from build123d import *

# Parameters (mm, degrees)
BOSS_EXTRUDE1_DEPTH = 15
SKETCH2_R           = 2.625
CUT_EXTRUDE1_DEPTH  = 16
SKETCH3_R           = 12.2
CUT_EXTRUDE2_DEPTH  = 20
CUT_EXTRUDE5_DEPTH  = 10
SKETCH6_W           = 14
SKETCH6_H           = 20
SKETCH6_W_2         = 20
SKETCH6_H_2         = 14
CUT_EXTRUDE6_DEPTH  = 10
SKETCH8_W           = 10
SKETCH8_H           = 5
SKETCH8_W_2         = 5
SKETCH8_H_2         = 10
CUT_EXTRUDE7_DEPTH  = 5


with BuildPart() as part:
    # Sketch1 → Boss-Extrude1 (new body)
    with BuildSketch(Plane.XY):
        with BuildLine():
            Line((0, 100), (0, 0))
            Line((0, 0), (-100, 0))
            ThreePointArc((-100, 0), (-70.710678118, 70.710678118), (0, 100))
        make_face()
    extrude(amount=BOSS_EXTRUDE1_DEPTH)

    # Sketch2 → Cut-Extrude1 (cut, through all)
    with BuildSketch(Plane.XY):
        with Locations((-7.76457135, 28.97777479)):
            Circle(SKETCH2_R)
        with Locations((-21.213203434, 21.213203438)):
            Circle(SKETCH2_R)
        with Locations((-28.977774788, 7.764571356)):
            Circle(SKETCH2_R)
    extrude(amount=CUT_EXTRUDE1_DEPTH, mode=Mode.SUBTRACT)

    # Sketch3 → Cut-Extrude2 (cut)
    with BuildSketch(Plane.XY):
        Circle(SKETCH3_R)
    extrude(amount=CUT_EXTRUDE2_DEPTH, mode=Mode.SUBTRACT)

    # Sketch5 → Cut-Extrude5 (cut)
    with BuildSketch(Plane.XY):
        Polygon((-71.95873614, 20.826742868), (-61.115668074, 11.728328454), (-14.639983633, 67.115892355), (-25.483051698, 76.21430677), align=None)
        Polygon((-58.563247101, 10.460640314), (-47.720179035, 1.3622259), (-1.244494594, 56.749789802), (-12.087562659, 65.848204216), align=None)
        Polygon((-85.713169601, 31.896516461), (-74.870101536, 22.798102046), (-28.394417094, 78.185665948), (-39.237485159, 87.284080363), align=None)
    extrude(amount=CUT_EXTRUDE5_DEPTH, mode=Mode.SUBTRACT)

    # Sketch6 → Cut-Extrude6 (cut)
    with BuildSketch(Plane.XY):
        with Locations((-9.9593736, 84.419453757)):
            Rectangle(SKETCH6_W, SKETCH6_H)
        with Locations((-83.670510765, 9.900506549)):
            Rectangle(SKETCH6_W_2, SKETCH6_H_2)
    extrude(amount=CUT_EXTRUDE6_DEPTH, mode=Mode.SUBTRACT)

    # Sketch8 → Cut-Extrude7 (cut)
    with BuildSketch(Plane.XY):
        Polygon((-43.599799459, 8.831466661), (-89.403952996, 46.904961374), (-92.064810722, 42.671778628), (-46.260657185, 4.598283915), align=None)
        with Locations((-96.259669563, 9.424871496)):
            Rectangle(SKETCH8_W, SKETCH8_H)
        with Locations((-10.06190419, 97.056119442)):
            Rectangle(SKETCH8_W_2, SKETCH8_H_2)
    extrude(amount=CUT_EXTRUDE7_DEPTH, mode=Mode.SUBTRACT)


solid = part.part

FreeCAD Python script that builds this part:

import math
import FreeCAD as App
import Part
import Sketcher

V = App.Vector
Q = App.Units.Quantity

doc = App.newDocument("Part")
body = doc.addObject("PartDesign::Body", "Body")

# Sketch on XY plane
sketch1 = body.newObject("Sketcher::SketchObject", "Sketch")
sketch1.AttachmentSupport = (doc.getObject("XY_Plane"), [""])
sketch1.MapMode = "FlatFace"
sketch1.addGeometry([
    Part.LineSegment(V(0, 0, 0), V(0, 100, 0)),
    Part.ArcOfCircle(Part.Circle(V(0, 0, 0), V(0, 0, 1), 100), math.radians(90), math.radians(180)),
    Part.LineSegment(V(-100, 0, 0), V(0, 0, 0)),
], False)
sketch1.addConstraint([
    Sketcher.Constraint("Coincident", 0, 2, 1, 1),
    Sketcher.Constraint("Coincident", 1, 2, 2, 1),
    Sketcher.Constraint("Coincident", 2, 2, 0, 1),
    Sketcher.Constraint("Vertical", 0),
    Sketcher.Constraint("Horizontal", 2),
    Sketcher.Constraint("Coincident", 1, 3, -1, 1),
    Sketcher.Constraint("Coincident", 2, 2, -1, 1),
    Sketcher.Constraint("Radius", 1, Q("100 mm")),
])
pad1 = body.newObject("PartDesign::Pad", "Pad")
pad1.Profile = sketch1
pad1.Length = 15

# Sketch on XY plane
sketch2 = body.newObject("Sketcher::SketchObject", "Sketch001")
sketch2.AttachmentSupport = (doc.getObject("XY_Plane"), [""])
sketch2.MapMode = "FlatFace"
sketch2.addGeometry([
    Part.Circle(V(-7.8, 29, 0), V(0, 0, 1), 2.6),
    Part.Circle(V(-21.2, 21.2, 0), V(0, 0, 1), 2.6),
    Part.Circle(V(-29, 7.8, 0), V(0, 0, 1), 2.6),
], False)
sketch2.addConstraint([
    Sketcher.Constraint("Equal", 0, 1),
    Sketcher.Constraint("Equal", 1, 2),
    Sketcher.Constraint("Diameter", 0, Q("5.25 mm")),
    Sketcher.Constraint("DistanceX", 0, 3, -1, 1, Q("7.764571 mm")),
    Sketcher.Constraint("DistanceY", -1, 1, 2, 3, Q("7.764571 mm")),
    Sketcher.Constraint("DistanceY", 1, 3, 0, 3, Q("7.764571 mm")),
    Sketcher.Constraint("DistanceX", 2, 3, 1, 3, Q("7.764571 mm")),
    Sketcher.Constraint("DistanceY", -1, 1, 0, 3, Q("28.977775 mm")),
    Sketcher.Constraint("DistanceX", 1, 3, -1, 1, Q("21.213203 mm")),
])
pocket1 = body.newObject("PartDesign::Pocket", "Pocket")
pocket1.Profile = sketch2
pocket1.Type = "ThroughAll"
pocket1.Reversed = True

# Sketch on XY plane
sketch3 = body.newObject("Sketcher::SketchObject", "Sketch002")
sketch3.AttachmentSupport = (doc.getObject("XY_Plane"), [""])
sketch3.MapMode = "FlatFace"
sketch3.addGeometry(Part.Circle(V(0, 0, 0), V(0, 0, 1), 12), False)
sketch3.addConstraint([
    Sketcher.Constraint("Coincident", 0, 3, -1, 1),
    Sketcher.Constraint("Diameter", 0, Q("24.4 mm")),
])
pocket2 = body.newObject("PartDesign::Pocket", "Pocket001")
pocket2.Profile = sketch3
pocket2.Length = 20
pocket2.Reversed = True

# Sketch on XY plane
sketch4 = body.newObject("Sketcher::SketchObject", "Sketch003")
sketch4.AttachmentSupport = (doc.getObject("XY_Plane"), [""])
sketch4.MapMode = "FlatFace"
sketch4.addGeometry([
    Part.LineSegment(V(-72, 21, 0), V(-61, 12, 0)),  # 0
    Part.LineSegment(V(-61, 12, 0), V(-15, 67, 0)),  # 1
    Part.LineSegment(V(-15, 67, 0), V(-25, 76, 0)),  # 2
    Part.LineSegment(V(-25, 76, 0), V(-72, 21, 0)),  # 3
    Part.LineSegment(V(-59, 10, 0), V(-48, 1, 0)),  # 4
    Part.LineSegment(V(-48, 1, 0), V(-1, 57, 0)),  # 5
    Part.LineSegment(V(-1, 57, 0), V(-12, 66, 0)),  # 6
    Part.LineSegment(V(-12, 66, 0), V(-59, 10, 0)),  # 7
    Part.LineSegment(V(-86, 32, 0), V(-75, 23, 0)),  # 8
    Part.LineSegment(V(-75, 23, 0), V(-28, 78, 0)),  # 9
    Part.LineSegment(V(-28, 78, 0), V(-39, 87, 0)),  # 10
    Part.LineSegment(V(-39, 87, 0), V(-86, 32, 0)),  # 11
], False)
sketch4.addConstraint([
    Sketcher.Constraint("Coincident", 0, 2, 1, 1),
    Sketcher.Constraint("Coincident", 1, 2, 2, 1),
    Sketcher.Constraint("Coincident", 2, 2, 3, 1),
    Sketcher.Constraint("Coincident", 3, 2, 0, 1),
    Sketcher.Constraint("Coincident", 4, 2, 5, 1),
    Sketcher.Constraint("Coincident", 5, 2, 6, 1),
    Sketcher.Constraint("Coincident", 6, 2, 7, 1),
    Sketcher.Constraint("Coincident", 7, 2, 4, 1),
    Sketcher.Constraint("Coincident", 8, 2, 9, 1),
    Sketcher.Constraint("Coincident", 9, 2, 10, 1),
    Sketcher.Constraint("Coincident", 10, 2, 11, 1),
    Sketcher.Constraint("Coincident", 11, 2, 8, 1),
    Sketcher.Constraint("Perpendicular", 0, 1),
    Sketcher.Constraint("Perpendicular", 1, 2),
    Sketcher.Constraint("Perpendicular", 2, 3),
    Sketcher.Constraint("Perpendicular", 3, 4),
    Sketcher.Constraint("Perpendicular", 4, 5),
    Sketcher.Constraint("Perpendicular", 5, 6),
    Sketcher.Constraint("Perpendicular", 6, 7),
    Sketcher.Constraint("Perpendicular", 7, 8),
    Sketcher.Constraint("Perpendicular", 8, 9),
    Sketcher.Constraint("Perpendicular", 9, 10),
    Sketcher.Constraint("Perpendicular", 10, 11),
    Sketcher.Constraint("Equal", 2, 4),
    Sketcher.Constraint("Equal", 3, 5),
    Sketcher.Constraint("Equal", 6, 8),
    Sketcher.Constraint("Equal", 7, 9),
    Sketcher.Constraint("Angle", 0, Q("-40 deg")),
    Sketcher.Constraint("DistanceX", 8, 2, -1, 1, Q("74.870102 mm")),
    Sketcher.Constraint("DistanceX", 10, 2, 1, 2, Q("24.597502 mm")),
    Sketcher.Constraint("Distance", 0, Q("14.15462 mm")),
    Sketcher.Constraint("Distance", 1, Q("72.30333 mm")),
    Sketcher.Constraint("DistanceY", -1, 1, 0, 2, Q("11.728328 mm")),
    Sketcher.Constraint("DistanceX", 4, 2, -1, 1, Q("47.720179 mm")),
    Sketcher.Constraint("DistanceY", -1, 1, 5, 2, Q("56.74979 mm")),
    Sketcher.Constraint("DistanceY", -1, 1, 10, 2, Q("87.28408 mm")),
])
pocket3 = body.newObject("PartDesign::Pocket", "Pocket002")
pocket3.Profile = sketch4
pocket3.Length = 10
pocket3.Reversed = True

# Sketch on XY plane
sketch5 = body.newObject("Sketcher::SketchObject", "Sketch004")
sketch5.AttachmentSupport = (doc.getObject("XY_Plane"), [""])
sketch5.MapMode = "FlatFace"
sketch5.addGeometry([
    Part.LineSegment(V(-17, 94, 0), V(-17, 74, 0)),  # 0
    Part.LineSegment(V(-17, 74, 0), V(-3, 74, 0)),  # 1
    Part.LineSegment(V(-3, 74, 0), V(-3, 94, 0)),  # 2
    Part.LineSegment(V(-3, 94, 0), V(-17, 94, 0)),  # 3
    Part.LineSegment(V(-94, 17, 0), V(-94, 3, 0)),  # 4
    Part.LineSegment(V(-94, 3, 0), V(-74, 3, 0)),  # 5
    Part.LineSegment(V(-74, 3, 0), V(-74, 17, 0)),  # 6
    Part.LineSegment(V(-74, 17, 0), V(-94, 17, 0)),  # 7
], False)
sketch5.addConstraint([
    Sketcher.Constraint("Coincident", 0, 2, 1, 1),
    Sketcher.Constraint("Coincident", 1, 2, 2, 1),
    Sketcher.Constraint("Coincident", 2, 2, 3, 1),
    Sketcher.Constraint("Coincident", 3, 2, 0, 1),
    Sketcher.Constraint("Coincident", 4, 2, 5, 1),
    Sketcher.Constraint("Coincident", 5, 2, 6, 1),
    Sketcher.Constraint("Coincident", 6, 2, 7, 1),
    Sketcher.Constraint("Coincident", 7, 2, 4, 1),
    Sketcher.Constraint("Vertical", 0),
    Sketcher.Constraint("Horizontal", 1),
    Sketcher.Constraint("Vertical", 2),
    Sketcher.Constraint("Horizontal", 3),
    Sketcher.Constraint("Vertical", 4),
    Sketcher.Constraint("Horizontal", 5),
    Sketcher.Constraint("Vertical", 6),
    Sketcher.Constraint("Horizontal", 7),
    Sketcher.Constraint("Equal", 7, 0),
    Sketcher.Constraint("Equal", 3, 4),
    Sketcher.Constraint("DistanceX", 1, 1, 1, 2, Q("14 mm")),
    Sketcher.Constraint("DistanceX", 5, 1, 5, 2, Q("20 mm")),
    Sketcher.Constraint("DistanceX", 4, 2, -1, 1, Q("93.670511 mm")),
    Sketcher.Constraint("DistanceX", 0, 2, -1, 1, Q("16.959374 mm")),
    Sketcher.Constraint("DistanceY", -1, 1, 0, 2, Q("74.419454 mm")),
    Sketcher.Constraint("DistanceY", -1, 1, 4, 2, Q("2.900507 mm")),
])
pocket4 = body.newObject("PartDesign::Pocket", "Pocket003")
pocket4.Profile = sketch5
pocket4.Length = 10
pocket4.Reversed = True

# Sketch on XY plane
sketch6 = body.newObject("Sketcher::SketchObject", "Sketch005")
sketch6.AttachmentSupport = (doc.getObject("XY_Plane"), [""])
sketch6.MapMode = "FlatFace"
sketch6.addGeometry([
    Part.LineSegment(V(-43.6, 8.8, 0), V(-89.4, 46.9, 0)),  # 0
    Part.LineSegment(V(-89.4, 46.9, 0), V(-92.1, 42.7, 0)),  # 1
    Part.LineSegment(V(-92.1, 42.7, 0), V(-46.3, 4.6, 0)),  # 2
    Part.LineSegment(V(-46.3, 4.6, 0), V(-43.6, 8.8, 0)),  # 3
    Part.LineSegment(V(-101.3, 11.9, 0), V(-101.3, 6.9, 0)),  # 4
    Part.LineSegment(V(-101.3, 6.9, 0), V(-91.3, 6.9, 0)),  # 5
    Part.LineSegment(V(-91.3, 6.9, 0), V(-91.3, 11.9, 0)),  # 6
    Part.LineSegment(V(-91.3, 11.9, 0), V(-101.3, 11.9, 0)),  # 7
    Part.LineSegment(V(-12.6, 102.1, 0), V(-12.6, 92.1, 0)),  # 8
    Part.LineSegment(V(-12.6, 92.1, 0), V(-7.6, 92.1, 0)),  # 9
    Part.LineSegment(V(-7.6, 92.1, 0), V(-7.6, 102.1, 0)),  # 10
    Part.LineSegment(V(-7.6, 102.1, 0), V(-12.6, 102.1, 0)),  # 11
], False)
sketch6.addConstraint([
    Sketcher.Constraint("Coincident", 0, 2, 1, 1),
    Sketcher.Constraint("Coincident", 1, 2, 2, 1),
    Sketcher.Constraint("Coincident", 2, 2, 3, 1),
    Sketcher.Constraint("Coincident", 3, 2, 0, 1),
    Sketcher.Constraint("Coincident", 4, 2, 5, 1),
    Sketcher.Constraint("Coincident", 5, 2, 6, 1),
    Sketcher.Constraint("Coincident", 6, 2, 7, 1),
    Sketcher.Constraint("Coincident", 7, 2, 4, 1),
    Sketcher.Constraint("Coincident", 8, 2, 9, 1),
    Sketcher.Constraint("Coincident", 9, 2, 10, 1),
    Sketcher.Constraint("Coincident", 10, 2, 11, 1),
    Sketcher.Constraint("Coincident", 11, 2, 8, 1),
    Sketcher.Constraint("Vertical", 4),
    Sketcher.Constraint("Horizontal", 5),
    Sketcher.Constraint("Vertical", 6),
    Sketcher.Constraint("Horizontal", 7),
    Sketcher.Constraint("Vertical", 8),
    Sketcher.Constraint("Horizontal", 9),
    Sketcher.Constraint("Vertical", 10),
    Sketcher.Constraint("Horizontal", 11),
    Sketcher.Constraint("Parallel", 0, 2),
    Sketcher.Constraint("Parallel", 1, 3),
    Sketcher.Constraint("Equal", 11, 4),
    Sketcher.Constraint("Equal", 7, 8),
    Sketcher.Constraint("DistanceX", 5, 1, 5, 2, Q("10 mm")),
    Sketcher.Constraint("DistanceX", 9, 1, 9, 2, Q("5 mm")),
    Sketcher.Constraint("Distance", 1, Q("5 mm")),
    Sketcher.Constraint("DistanceX", 3, 2, -1, 1, Q("43.599799 mm")),
    Sketcher.Constraint("Distance", 0, Q("59.561829 mm")),
    Sketcher.Constraint("DistanceY", -1, 1, 0, 2, Q("46.904961 mm")),
    Sketcher.Constraint("DistanceX", 1, 2, -1, 1, Q("92.064811 mm")),
    Sketcher.Constraint("DistanceY", -1, 1, 1, 2, Q("42.671779 mm")),
    Sketcher.Constraint("DistanceX", 4, 2, -1, 1, Q("101.25967 mm")),
    Sketcher.Constraint("DistanceY", -1, 1, 4, 2, Q("6.924871 mm")),
    Sketcher.Constraint("DistanceY", -1, 1, 8, 2, Q("92.056119 mm")),
    Sketcher.Constraint("DistanceX", 0, 2, 8, 2, Q("76.842049 mm")),
])
pocket5 = body.newObject("PartDesign::Pocket", "Pocket004")
pocket5.Profile = sketch6
pocket5.Length = 5
pocket5.Reversed = True

doc.recompute()
